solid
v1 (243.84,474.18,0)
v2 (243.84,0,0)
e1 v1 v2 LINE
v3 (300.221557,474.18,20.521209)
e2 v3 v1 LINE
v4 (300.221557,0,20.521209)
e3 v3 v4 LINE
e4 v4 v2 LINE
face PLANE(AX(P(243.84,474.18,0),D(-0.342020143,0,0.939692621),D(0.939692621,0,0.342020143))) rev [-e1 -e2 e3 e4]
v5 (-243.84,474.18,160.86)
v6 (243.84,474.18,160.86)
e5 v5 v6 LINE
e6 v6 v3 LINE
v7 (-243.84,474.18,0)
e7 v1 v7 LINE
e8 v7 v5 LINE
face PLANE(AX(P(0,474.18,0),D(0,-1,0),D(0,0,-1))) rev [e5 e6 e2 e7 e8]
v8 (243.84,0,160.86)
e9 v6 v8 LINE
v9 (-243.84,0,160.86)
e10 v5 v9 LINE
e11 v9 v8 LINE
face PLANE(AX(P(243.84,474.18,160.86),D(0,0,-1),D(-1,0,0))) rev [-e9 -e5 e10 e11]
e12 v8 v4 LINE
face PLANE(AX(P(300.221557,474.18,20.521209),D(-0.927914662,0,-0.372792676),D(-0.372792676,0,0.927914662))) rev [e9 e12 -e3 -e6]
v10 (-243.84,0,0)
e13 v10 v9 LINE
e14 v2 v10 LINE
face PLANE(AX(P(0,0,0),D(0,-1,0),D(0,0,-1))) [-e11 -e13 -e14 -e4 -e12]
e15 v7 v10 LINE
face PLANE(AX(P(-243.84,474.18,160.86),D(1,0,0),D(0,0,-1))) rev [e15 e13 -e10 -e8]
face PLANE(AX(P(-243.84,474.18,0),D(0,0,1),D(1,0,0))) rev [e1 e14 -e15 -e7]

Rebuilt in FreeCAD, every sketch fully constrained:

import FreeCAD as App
import Part
import Sketcher

V = App.Vector
Q = App.Units.Quantity


def add_polygon(sketch, points):
    """Adds a closed chain of lines whose ends are joined by coincident constraints."""
    first, n = sketch.GeometryCount, len(points)
    for a, b in zip(points, points[1:] + points[:1]):
        sketch.addGeometry(Part.LineSegment(App.Vector(*a, 0), App.Vector(*b, 0)), False)
    for i in range(n):
        sketch.addConstraint(Sketcher.Constraint("Coincident", first + i, 2, first + (i + 1) % n, 1))

doc = App.newDocument("Part")
body = doc.addObject("PartDesign::Body", "Body")

sketch1 = body.newObject("Sketcher::SketchObject", "Sketch")
sketch1.AttachmentSupport = (doc.getObject("XZ_Plane"), [""])
sketch1.MapMode = "FlatFace"
add_polygon(sketch1, [(244, 0), (-244, 0), (-244, 161), (244, 161), (300, 21)])
sketch1.addConstraint([
    Sketcher.Constraint("Horizontal", 0),
    Sketcher.Constraint("Vertical", 1),
    Sketcher.Constraint("Horizontal", 2),
    Sketcher.Constraint("Symmetric", 0, 2, 4, 2, -1, 1),
    Sketcher.Constraint("Vertical", 2, 2, 4, 2),
    Sketcher.Constraint("Angle", 4, Q("-160 deg")),
    Sketcher.Constraint("Distance", 4, 60.0),
    Sketcher.Constraint("DistanceX", 0, 2, 0, 1, 487.68),
    Sketcher.Constraint("DistanceY", 1, 1, 1, 2, 160.86),
])
pad1 = body.newObject("PartDesign::Pad", "Pad")
pad1.Profile = sketch1
pad1.Length = 474.18
pad1.Reversed = True

doc.recompute()
